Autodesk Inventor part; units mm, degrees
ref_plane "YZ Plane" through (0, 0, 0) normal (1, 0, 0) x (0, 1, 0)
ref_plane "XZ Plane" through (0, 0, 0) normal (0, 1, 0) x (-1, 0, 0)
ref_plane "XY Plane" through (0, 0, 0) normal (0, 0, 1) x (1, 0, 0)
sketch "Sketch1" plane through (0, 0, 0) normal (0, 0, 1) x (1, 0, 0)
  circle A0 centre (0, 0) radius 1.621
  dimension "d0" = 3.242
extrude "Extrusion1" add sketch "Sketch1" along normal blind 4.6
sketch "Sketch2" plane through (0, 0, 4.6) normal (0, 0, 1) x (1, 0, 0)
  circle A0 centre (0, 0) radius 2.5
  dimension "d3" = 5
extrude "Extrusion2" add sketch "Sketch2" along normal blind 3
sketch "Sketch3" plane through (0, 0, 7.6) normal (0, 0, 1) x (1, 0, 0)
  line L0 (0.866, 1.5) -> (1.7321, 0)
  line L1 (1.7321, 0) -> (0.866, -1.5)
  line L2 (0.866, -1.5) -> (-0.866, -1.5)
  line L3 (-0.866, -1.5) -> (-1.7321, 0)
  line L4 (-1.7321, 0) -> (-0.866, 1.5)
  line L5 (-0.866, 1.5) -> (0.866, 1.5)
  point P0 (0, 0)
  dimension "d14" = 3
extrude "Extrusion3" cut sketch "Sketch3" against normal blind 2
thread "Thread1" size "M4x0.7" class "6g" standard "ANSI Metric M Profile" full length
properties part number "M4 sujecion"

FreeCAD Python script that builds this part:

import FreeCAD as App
import Part
import Sketcher
from FreeCAD import Vector


def add_polygon(sketch, points):
    """Adds a closed chain of lines whose ends are joined by coincident constraints."""
    first, n = sketch.GeometryCount, len(points)
    for a, b in zip(points, points[1:] + points[:1]):
        sketch.addGeometry(Part.LineSegment(App.Vector(*a, 0), App.Vector(*b, 0)), False)
    for i in range(n):
        sketch.addConstraint(Sketcher.Constraint("Coincident", first + i, 2, first + (i + 1) % n, 1))

doc = App.newDocument("Part")
body = doc.addObject("PartDesign::Body", "Body")

sketch1 = doc.addObject("Sketcher::SketchObject", "Sketch")
body.addObject(sketch1)
sketch1.AttachmentSupport = (doc.XY_Plane, [""])
sketch1.MapMode = "FlatFace"
sketch1.addGeometry(Part.Circle(Vector(0, 0, 0), Vector(0, 0, 1), 1.6), False)
sketch1.addConstraint([
    Sketcher.Constraint("Coincident", 0, 3, -1, 1),
    Sketcher.Constraint("Diameter", 0, 3.242),
])
pad1 = doc.addObject("PartDesign::Pad", "Pad")
body.addObject(pad1)
pad1.Profile = sketch1
pad1.Length = 4.6

sketch2 = doc.addObject("Sketcher::SketchObject", "Sketch001")
body.addObject(sketch2)
sketch2.AttachmentSupport = (doc.XY_Plane, [""])
sketch2.MapMode = "FlatFace"
sketch2.AttachmentOffset = App.Placement(Vector(0, 0, 4.6), App.Rotation())
sketch2.addGeometry(Part.Circle(Vector(0, 0, 0), Vector(0, 0, 1), 2.5), False)
sketch2.addConstraint([
    Sketcher.Constraint("Coincident", 0, 3, -1, 1),
    Sketcher.Constraint("Diameter", 0, 5.0),
])
pad2 = doc.addObject("PartDesign::Pad", "Pad001")
body.addObject(pad2)
pad2.Profile = sketch2
pad2.Length = 3

sketch3 = doc.addObject("Sketcher::SketchObject", "Sketch002")
body.addObject(sketch3)
sketch3.AttachmentSupport = (doc.XY_Plane, [""])
sketch3.MapMode = "FlatFace"
sketch3.AttachmentOffset = App.Placement(Vector(0, 0, 7.6), App.Rotation())
add_polygon(sketch3, [(1.7, 0), (0.9, 1.5), (-0.9, 1.5), (-1.7, 0), (-0.9, -1.5), (0.9, -1.5)])
sketch3.addConstraint([
    Sketcher.Constraint("Horizontal", 1),
    Sketcher.Constraint("Horizontal", 4),
    Sketcher.Constraint("Symmetric", 0, 2, 3, 2, -1, 1),
    Sketcher.Constraint("Symmetric", 2, 2, 5, 2, -1, 1),
    Sketcher.Constraint("PointOnObject", 2, 2, -1),
    Sketcher.Constraint("Parallel", 2, 5),
    Sketcher.Constraint("Vertical", 1, 2, 3, 2),
    Sketcher.Constraint("DistanceY", 3, 2, 1, 2, 3.0),
    Sketcher.Constraint("DistanceX", 1, 2, 1, 1, 1.732),
    Sketcher.Constraint("Distance", 0, 1.732),
])
pocket1 = doc.addObject("PartDesign::Pocket", "Pocket")
body.addObject(pocket1)
pocket1.Profile = sketch3
pocket1.Length = 2

doc.recompute()
